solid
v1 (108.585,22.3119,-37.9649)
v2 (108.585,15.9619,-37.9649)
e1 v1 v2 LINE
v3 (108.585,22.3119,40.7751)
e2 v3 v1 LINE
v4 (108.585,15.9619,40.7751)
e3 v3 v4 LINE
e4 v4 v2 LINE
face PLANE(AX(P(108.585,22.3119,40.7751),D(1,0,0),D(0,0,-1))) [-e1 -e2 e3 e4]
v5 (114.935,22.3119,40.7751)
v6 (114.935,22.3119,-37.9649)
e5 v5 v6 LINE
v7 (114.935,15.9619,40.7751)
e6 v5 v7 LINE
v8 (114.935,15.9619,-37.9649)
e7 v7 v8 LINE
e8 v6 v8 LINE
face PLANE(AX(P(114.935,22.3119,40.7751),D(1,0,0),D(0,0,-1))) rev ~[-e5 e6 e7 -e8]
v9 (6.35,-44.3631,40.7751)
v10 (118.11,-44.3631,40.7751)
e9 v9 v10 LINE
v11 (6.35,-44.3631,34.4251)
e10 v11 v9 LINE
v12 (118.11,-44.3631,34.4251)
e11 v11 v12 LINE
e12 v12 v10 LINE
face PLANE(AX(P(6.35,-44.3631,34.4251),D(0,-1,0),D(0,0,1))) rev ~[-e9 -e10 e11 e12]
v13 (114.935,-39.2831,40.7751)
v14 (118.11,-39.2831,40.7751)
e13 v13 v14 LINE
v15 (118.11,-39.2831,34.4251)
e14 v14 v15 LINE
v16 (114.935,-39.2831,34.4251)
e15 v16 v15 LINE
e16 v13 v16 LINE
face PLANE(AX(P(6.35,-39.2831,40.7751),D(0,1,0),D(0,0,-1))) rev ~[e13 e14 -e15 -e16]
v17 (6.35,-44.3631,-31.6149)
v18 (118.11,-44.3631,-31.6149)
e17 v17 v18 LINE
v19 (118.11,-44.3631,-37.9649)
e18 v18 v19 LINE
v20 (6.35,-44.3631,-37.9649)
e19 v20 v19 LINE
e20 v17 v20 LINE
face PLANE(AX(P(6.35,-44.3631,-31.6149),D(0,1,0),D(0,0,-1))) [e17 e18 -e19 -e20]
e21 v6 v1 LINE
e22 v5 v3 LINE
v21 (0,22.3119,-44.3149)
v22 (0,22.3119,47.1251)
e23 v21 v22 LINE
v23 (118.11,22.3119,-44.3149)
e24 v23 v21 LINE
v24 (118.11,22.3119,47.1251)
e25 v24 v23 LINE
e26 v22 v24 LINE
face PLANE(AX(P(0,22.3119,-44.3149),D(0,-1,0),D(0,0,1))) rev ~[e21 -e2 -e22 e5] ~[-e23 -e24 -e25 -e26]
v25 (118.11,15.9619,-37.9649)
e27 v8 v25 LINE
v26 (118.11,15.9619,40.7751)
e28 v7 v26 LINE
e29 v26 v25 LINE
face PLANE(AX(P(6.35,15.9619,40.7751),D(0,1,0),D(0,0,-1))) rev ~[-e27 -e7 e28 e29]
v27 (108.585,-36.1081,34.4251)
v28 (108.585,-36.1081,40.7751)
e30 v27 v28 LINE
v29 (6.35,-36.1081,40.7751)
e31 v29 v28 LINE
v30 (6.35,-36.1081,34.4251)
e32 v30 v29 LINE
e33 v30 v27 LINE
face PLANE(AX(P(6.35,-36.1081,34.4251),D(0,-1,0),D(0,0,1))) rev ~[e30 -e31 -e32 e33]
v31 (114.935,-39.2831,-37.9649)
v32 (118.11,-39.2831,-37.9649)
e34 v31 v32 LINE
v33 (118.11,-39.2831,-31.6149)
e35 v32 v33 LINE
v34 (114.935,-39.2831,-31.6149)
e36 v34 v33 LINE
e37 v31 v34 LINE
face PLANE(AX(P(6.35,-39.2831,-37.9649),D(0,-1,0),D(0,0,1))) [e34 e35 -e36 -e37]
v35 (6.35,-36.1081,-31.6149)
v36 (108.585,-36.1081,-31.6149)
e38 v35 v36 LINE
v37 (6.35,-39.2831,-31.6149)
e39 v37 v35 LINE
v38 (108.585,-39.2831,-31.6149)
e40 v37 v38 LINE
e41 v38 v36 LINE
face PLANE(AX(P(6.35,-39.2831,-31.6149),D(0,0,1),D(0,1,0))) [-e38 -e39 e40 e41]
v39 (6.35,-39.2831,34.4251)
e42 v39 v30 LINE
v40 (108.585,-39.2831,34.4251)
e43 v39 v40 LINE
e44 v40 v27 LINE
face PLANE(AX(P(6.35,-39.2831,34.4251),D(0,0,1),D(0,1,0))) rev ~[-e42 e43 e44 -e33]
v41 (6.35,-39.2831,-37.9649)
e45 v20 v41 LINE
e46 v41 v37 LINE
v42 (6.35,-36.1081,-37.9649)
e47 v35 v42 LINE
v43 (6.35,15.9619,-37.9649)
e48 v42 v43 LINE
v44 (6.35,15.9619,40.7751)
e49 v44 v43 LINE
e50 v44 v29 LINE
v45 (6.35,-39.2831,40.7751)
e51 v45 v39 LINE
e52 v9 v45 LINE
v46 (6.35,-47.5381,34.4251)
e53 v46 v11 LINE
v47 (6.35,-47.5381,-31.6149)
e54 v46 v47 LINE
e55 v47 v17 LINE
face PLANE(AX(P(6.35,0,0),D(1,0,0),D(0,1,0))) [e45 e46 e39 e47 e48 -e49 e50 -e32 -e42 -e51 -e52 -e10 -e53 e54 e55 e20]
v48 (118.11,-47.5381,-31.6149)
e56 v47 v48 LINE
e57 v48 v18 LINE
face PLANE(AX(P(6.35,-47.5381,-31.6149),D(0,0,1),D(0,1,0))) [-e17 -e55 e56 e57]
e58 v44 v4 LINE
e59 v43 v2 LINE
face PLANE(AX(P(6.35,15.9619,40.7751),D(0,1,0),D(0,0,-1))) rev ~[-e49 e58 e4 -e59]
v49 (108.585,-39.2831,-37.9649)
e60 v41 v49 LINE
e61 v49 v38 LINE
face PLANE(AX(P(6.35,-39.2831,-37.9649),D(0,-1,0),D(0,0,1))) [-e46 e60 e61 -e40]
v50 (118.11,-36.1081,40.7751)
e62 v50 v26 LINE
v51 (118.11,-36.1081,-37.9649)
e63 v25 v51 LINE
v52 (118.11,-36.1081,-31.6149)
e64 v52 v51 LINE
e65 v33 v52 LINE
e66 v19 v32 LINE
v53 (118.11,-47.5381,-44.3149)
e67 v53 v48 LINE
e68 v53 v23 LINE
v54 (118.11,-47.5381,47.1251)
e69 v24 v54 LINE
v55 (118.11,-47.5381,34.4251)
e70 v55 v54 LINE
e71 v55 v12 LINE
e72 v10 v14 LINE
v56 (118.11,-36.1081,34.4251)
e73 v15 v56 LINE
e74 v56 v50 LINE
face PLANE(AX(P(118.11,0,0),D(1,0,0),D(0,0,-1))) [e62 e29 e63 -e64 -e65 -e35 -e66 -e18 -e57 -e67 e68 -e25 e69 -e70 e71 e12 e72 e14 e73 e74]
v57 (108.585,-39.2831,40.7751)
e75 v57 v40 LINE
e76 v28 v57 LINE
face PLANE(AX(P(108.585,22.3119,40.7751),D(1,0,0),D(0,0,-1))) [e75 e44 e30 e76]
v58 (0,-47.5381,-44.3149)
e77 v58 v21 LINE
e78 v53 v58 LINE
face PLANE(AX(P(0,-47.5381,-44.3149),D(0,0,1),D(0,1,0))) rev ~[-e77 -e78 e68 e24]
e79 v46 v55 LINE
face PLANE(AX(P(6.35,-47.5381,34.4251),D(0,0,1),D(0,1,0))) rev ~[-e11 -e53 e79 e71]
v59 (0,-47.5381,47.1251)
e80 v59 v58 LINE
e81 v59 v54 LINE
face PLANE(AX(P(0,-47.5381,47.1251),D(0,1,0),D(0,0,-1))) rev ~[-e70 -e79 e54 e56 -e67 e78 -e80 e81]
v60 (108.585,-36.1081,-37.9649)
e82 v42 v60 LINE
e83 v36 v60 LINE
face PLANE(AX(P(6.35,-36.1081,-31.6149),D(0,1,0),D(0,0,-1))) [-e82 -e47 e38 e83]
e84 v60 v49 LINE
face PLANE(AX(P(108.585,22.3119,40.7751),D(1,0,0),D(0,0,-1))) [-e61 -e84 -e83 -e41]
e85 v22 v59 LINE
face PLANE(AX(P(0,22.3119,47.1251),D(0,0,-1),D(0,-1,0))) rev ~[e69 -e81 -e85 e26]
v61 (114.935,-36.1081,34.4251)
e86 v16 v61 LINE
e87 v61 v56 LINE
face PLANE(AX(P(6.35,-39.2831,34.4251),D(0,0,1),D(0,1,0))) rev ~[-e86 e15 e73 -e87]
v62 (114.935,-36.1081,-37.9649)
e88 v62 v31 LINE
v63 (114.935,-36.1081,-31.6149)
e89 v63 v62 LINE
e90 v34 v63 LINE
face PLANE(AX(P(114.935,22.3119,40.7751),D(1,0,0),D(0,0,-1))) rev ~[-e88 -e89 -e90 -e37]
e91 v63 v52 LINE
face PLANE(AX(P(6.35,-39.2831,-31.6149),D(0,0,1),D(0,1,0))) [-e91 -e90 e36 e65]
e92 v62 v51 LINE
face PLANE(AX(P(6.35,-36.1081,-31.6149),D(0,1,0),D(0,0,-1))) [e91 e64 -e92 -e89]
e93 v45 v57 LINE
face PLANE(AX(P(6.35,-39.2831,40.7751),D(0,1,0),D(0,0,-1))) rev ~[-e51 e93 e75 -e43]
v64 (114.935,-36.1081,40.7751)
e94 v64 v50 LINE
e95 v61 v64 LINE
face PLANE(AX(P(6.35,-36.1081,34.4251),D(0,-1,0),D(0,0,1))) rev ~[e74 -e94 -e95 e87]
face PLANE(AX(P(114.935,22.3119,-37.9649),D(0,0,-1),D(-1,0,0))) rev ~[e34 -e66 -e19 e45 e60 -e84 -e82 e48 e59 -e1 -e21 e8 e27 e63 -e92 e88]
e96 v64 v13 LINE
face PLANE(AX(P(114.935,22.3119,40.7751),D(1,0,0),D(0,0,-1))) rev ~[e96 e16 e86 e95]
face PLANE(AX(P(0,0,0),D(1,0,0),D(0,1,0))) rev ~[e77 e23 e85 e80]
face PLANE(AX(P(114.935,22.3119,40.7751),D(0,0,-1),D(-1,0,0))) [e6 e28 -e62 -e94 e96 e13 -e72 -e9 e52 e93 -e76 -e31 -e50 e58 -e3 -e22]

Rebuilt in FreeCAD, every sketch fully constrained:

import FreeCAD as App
import Part
import Sketcher
from FreeCAD import Vector
Q = App.Units.Quantity

doc = App.newDocument("Part")
body = doc.addObject("PartDesign::Body", "Body")

# Sketch on YZ plane
sketch1 = body.newObject("Sketcher::SketchObject", "Sketch")
sketch1.AttachmentSupport = (doc.getObject("YZ_Plane"), [""])
sketch1.MapMode = "FlatFace"
sketch1.addGeometry([
    Part.LineSegment(Vector(22, -44, 0), Vector(22, 47, 0)),
    Part.LineSegment(Vector(22, 47, 0), Vector(-48, 47, 0)),
    Part.LineSegment(Vector(-48, 47, 0), Vector(-48, -44, 0)),
    Part.LineSegment(Vector(-48, -44, 0), Vector(22, -44, 0)),
], False)
sketch1.addConstraint([
    Sketcher.Constraint("Coincident", 0, 2, 1, 1),
    Sketcher.Constraint("Coincident", 1, 2, 2, 1),
    Sketcher.Constraint("Coincident", 2, 2, 3, 1),
    Sketcher.Constraint("Coincident", 3, 2, 0, 1),
    Sketcher.Constraint("Vertical", 0),
    Sketcher.Constraint("Horizontal", 1),
    Sketcher.Constraint("Vertical", 2),
    Sketcher.Constraint("Horizontal", 3),
    Sketcher.Constraint("DistanceY", 0, 1, 0, 2, Q("3.6 in")),
    Sketcher.Constraint("DistanceX", 1, 2, 1, 1, Q("2.75 in")),
    Sketcher.Constraint("DistanceX", -1, 1, 0, 2, Q("22.312 mm")),
    Sketcher.Constraint("DistanceY", -1, 1, 0, 2, Q("47.125 mm")),
])
pad1 = body.newObject("PartDesign::Pad", "Pad")
pad1.Profile = sketch1
pad1.Length = Q("0.25 in")

# Sketch on YZ plane
sketch2 = body.newObject("Sketcher::SketchObject", "Sketch001")
sketch2.AttachmentSupport = (doc.getObject("YZ_Plane"), [""])
sketch2.MapMode = "FlatFace"
sketch2.AttachmentOffset = App.Placement(Vector(0, 0, 0.25 * 25.4), App.Rotation())
sketch2.addGeometry([
    Part.LineSegment(Vector(22.3, -44.3, 0), Vector(22.3, 47.1, 0)),  # 0
    Part.LineSegment(Vector(22.3, 47.1, 0), Vector(-47.5, 47.1, 0)),  # 1
    Part.LineSegment(Vector(-47.5, 47.1, 0), Vector(-47.5, 34.4, 0)),  # 2
    Part.LineSegment(Vector(-47.5, 34.4, 0), Vector(-44.4, 34.4, 0)),  # 3
    Part.LineSegment(Vector(-44.4, 34.4, 0), Vector(-44.4, 40.8, 0)),  # 4
    Part.LineSegment(Vector(-44.4, 40.8, 0), Vector(-39.3, 40.8, 0)),  # 5
    Part.LineSegment(Vector(-39.3, 40.8, 0), Vector(-39.3, 34.4, 0)),  # 6
    Part.LineSegment(Vector(-39.3, 34.4, 0), Vector(-36.1, 34.4, 0)),  # 7
    Part.LineSegment(Vector(-36.1, 34.4, 0), Vector(-36.1, 40.8, 0)),  # 8
    Part.LineSegment(Vector(-36.1, 40.8, 0), Vector(16, 40.8, 0)),  # 9
    Part.LineSegment(Vector(16, 40.8, 0), Vector(16, -38, 0)),  # 10
    Part.LineSegment(Vector(16, -38, 0), Vector(-36.1, -38, 0)),  # 11
    Part.LineSegment(Vector(-36.1, -38, 0), Vector(-36.1, -31.6, 0)),  # 12
    Part.LineSegment(Vector(-36.1, -31.6, 0), Vector(-39.3, -31.6, 0)),  # 13
    Part.LineSegment(Vector(-39.3, -31.6, 0), Vector(-39.3, -38, 0)),  # 14
    Part.LineSegment(Vector(-39.3, -38, 0), Vector(-44.4, -38, 0)),  # 15
    Part.LineSegment(Vector(-44.4, -38, 0), Vector(-44.4, -31.6, 0)),  # 16
    Part.LineSegment(Vector(-44.4, -31.6, 0), Vector(-47.5, -31.6, 0)),  # 17
    Part.LineSegment(Vector(-47.5, -31.6, 0), Vector(-47.5, -44.3, 0)),  # 18
    Part.LineSegment(Vector(-47.5, -44.3, 0), Vector(22.3, -44.3, 0)),  # 19
], False)
sketch2.addConstraint([
    Sketcher.Constraint("Coincident", 0, 2, 1, 1),
    Sketcher.Constraint("Coincident", 1, 2, 2, 1),
    Sketcher.Constraint("Coincident", 2, 2, 3, 1),
    Sketcher.Constraint("Coincident", 3, 2, 4, 1),
    Sketcher.Constraint("Coincident", 4, 2, 5, 1),
    Sketcher.Constraint("Coincident", 5, 2, 6, 1),
    Sketcher.Constraint("Coincident", 6, 2, 7, 1),
    Sketcher.Constraint("Coincident", 7, 2, 8, 1),
    Sketcher.Constraint("Coincident", 8, 2, 9, 1),
    Sketcher.Constraint("Coincident", 9, 2, 10, 1),
    Sketcher.Constraint("Coincident", 10, 2, 11, 1),
    Sketcher.Constraint("Coincident", 11, 2, 12, 1),
    Sketcher.Constraint("Coincident", 12, 2, 13, 1),
    Sketcher.Constraint("Coincident", 13, 2, 14, 1),
    Sketcher.Constraint("Coincident", 14, 2, 15, 1),
    Sketcher.Constraint("Coincident", 15, 2, 16, 1),
    Sketcher.Constraint("Coincident", 16, 2, 17, 1),
    Sketcher.Constraint("Coincident", 17, 2, 18, 1),
    Sketcher.Constraint("Coincident", 18, 2, 19, 1),
    Sketcher.Constraint("Coincident", 19, 2, 0, 1),
    Sketcher.Constraint("Vertical", 0),
    Sketcher.Constraint("Horizontal", 1),
    Sketcher.Constraint("Vertical", 2),
    Sketcher.Constraint("Horizontal", 3),
    Sketcher.Constraint("Vertical", 4),
    Sketcher.Constraint("Horizontal", 5),
    Sketcher.Constraint("Vertical", 6),
    Sketcher.Constraint("Horizontal", 7),
    Sketcher.Constraint("Vertical", 8),
    Sketcher.Constraint("Horizontal", 9),
    Sketcher.Constraint("Vertical", 10),
    Sketcher.Constraint("Horizontal", 11),
    Sketcher.Constraint("Vertical", 12),
    Sketcher.Constraint("Horizontal", 13),
    Sketcher.Constraint("Vertical", 14),
    Sketcher.Constraint("Horizontal", 15),
    Sketcher.Constraint("Vertical", 16),
    Sketcher.Constraint("Horizontal", 17),
    Sketcher.Constraint("Vertical", 18),
    Sketcher.Constraint("Horizontal", 19),
    Sketcher.Constraint("Horizontal", 3, 2, 6, 2),
    Sketcher.Constraint("Horizontal", 5, 2, 8, 2),
    Sketcher.Constraint("Horizontal", 11, 2, 14, 2),
    Sketcher.Constraint("Horizontal", 13, 2, 16, 2),
    Sketcher.Constraint("Vertical", 8, 2, 11, 2),
    Sketcher.Constraint("Vertical", 6, 2, 13, 2),
    Sketcher.Constraint("Vertical", 4, 2, 15, 2),
    Sketcher.Constraint("Vertical", 2, 2, 17, 2),
    Sketcher.Constraint("Equal", 3, 7),
    Sketcher.Constraint("Equal", 8, 12),
    Sketcher.Constraint("Equal", 2, 18),
    Sketcher.Constraint("DistanceX", 5, 1, 5, 2, Q("0.2 in")),
    Sketcher.Constraint("DistanceY", 10, 2, 10, 1, Q("3.1 in")),
    Sketcher.Constraint("DistanceY", 4, 1, 4, 2, Q("0.25 in")),
    Sketcher.Constraint("DistanceX", 3, 1, 3, 2, Q("0.125 in")),
    Sketcher.Constraint("DistanceY", 4, 2, 1, 2, Q("0.25 in")),
    Sketcher.Constraint("DistanceX", 9, 2, 0, 2, Q("0.25 in")),
    Sketcher.Constraint("DistanceX", 1, 2, 1, 1, Q("2.75 in")),
    Sketcher.Constraint("DistanceX", -1, 1, 0, 2, Q("22.312 mm")),
    Sketcher.Constraint("DistanceY", -1, 1, 0, 2, Q("47.125 mm")),
])
pad2 = body.newObject("PartDesign::Pad", "Pad001")
pad2.Profile = sketch2
pad2.Length = Q("4.4 in")

# Sketch on XZ plane
sketch3 = body.newObject("Sketcher::SketchObject", "Sketch002")
sketch3.AttachmentSupport = (doc.getObject("XZ_Plane"), [""])
sketch3.MapMode = "FlatFace"
sketch3.AttachmentOffset = App.Placement(Vector(0, 0, -22.3119), App.Rotation())
sketch3.addGeometry([
    Part.LineSegment(Vector(109, 41, 0), Vector(115, 41, 0)),
    Part.LineSegment(Vector(115, 41, 0), Vector(115, -38, 0)),
    Part.LineSegment(Vector(115, -38, 0), Vector(109, -38, 0)),
    Part.LineSegment(Vector(109, -38, 0), Vector(109, 41, 0)),
], False)
sketch3.addConstraint([
    Sketcher.Constraint("Coincident", 0, 2, 1, 1),
    Sketcher.Constraint("Coincident", 1, 2, 2, 1),
    Sketcher.Constraint("Coincident", 2, 2, 3, 1),
    Sketcher.Constraint("Coincident", 3, 2, 0, 1),
    Sketcher.Constraint("Horizontal", 0),
    Sketcher.Constraint("Vertical", 1),
    Sketcher.Constraint("Horizontal", 2),
    Sketcher.Constraint("Vertical", 3),
    Sketcher.Constraint("DistanceY", 1, 2, 1, 1, Q("3.1 in")),
    Sketcher.Constraint("DistanceX", 0, 1, 0, 2, Q("0.25 in")),
    Sketcher.Constraint("DistanceX", -1, 1, 0, 2, Q("4.525 in")),
    Sketcher.Constraint("DistanceY", -1, 1, 0, 2, Q("40.775 mm")),
])
pocket1 = body.newObject("PartDesign::Pocket", "Pocket")
pocket1.Profile = sketch3
pocket1.Length = Q("2.5 in")
pocket1.Reversed = True

doc.recompute()
